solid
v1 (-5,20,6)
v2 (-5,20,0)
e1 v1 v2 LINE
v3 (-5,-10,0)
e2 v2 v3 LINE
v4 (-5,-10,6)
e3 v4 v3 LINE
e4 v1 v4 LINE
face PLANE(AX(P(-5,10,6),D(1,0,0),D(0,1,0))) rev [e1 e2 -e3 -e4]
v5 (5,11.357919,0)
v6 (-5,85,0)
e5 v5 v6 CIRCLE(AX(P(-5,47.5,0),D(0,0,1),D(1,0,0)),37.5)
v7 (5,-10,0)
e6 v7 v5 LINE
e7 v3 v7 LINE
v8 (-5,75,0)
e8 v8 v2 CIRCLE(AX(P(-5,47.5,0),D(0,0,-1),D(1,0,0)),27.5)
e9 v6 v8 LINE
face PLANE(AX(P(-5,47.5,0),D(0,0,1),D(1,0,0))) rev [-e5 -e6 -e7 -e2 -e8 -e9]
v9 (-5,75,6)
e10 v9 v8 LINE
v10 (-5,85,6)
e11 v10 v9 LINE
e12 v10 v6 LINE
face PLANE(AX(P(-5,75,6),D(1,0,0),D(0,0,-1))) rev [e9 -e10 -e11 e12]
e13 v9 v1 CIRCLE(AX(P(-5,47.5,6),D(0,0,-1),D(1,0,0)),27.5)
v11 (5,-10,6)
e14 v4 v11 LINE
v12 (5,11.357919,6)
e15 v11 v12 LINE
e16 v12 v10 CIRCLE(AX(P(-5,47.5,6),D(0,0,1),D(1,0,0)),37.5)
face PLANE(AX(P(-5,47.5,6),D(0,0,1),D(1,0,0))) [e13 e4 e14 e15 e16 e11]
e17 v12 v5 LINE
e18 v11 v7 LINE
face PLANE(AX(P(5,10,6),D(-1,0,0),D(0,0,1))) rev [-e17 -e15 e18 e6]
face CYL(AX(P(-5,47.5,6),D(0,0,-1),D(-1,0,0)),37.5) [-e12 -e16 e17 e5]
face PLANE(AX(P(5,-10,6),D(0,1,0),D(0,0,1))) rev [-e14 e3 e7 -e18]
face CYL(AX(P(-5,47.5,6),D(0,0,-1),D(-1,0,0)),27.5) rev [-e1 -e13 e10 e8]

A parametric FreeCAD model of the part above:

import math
import FreeCAD as App
import Part
import Sketcher

doc = App.newDocument("Part")
params = doc.addObject("Spreadsheet::Sheet", "Params")
for row, (alias, value) in enumerate([
    ("sketch1_radius", "27.5 mm"),
    ("sketch1_radius2", "37.5 mm"),
    ("sketch1_height", "30 mm"),
    ("pad1_length", "6 mm"),
], start=1):
    params.set(f"A{row}", alias)
    params.set(f"B{row}", "=" + value)
    params.setAlias(f"B{row}", alias)

body = doc.addObject("PartDesign::Body", "Body")

# Sketch on XY plane
sketch1 = body.newObject("Sketcher::SketchObject", "Sketch")
sketch1.AttachmentSupport = (doc.getObject("XY_Plane"), [""])
sketch1.MapMode = "FlatFace"
sketch1.addGeometry(Part.ArcOfCircle(Part.Circle(App.Vector(-5, 48, 0), App.Vector(0, 0, 1), 28), math.radians(-90), math.radians(90)), False)
sketch1.addGeometry(Part.LineSegment(App.Vector(-5, 20, 0), App.Vector(-5, -10, 0)), False)
sketch1.addGeometry(Part.LineSegment(App.Vector(-5, -10, 0), App.Vector(5, -10, 0)), False)
sketch1.addGeometry(Part.LineSegment(App.Vector(5, -10, 0), App.Vector(5, 11, 0)), False)
sketch1.addGeometry(Part.ArcOfCircle(Part.Circle(App.Vector(-5, 48, 0), App.Vector(0, 0, 1), 38), math.radians(-75), math.radians(90)), False)
sketch1.addGeometry(Part.LineSegment(App.Vector(-5, 85, 0), App.Vector(-5, 75, 0)), False)
sketch1.addConstraint(Sketcher.Constraint("Coincident", 0, 1, 1, 1))
sketch1.addConstraint(Sketcher.Constraint("Coincident", 1, 2, 2, 1))
sketch1.addConstraint(Sketcher.Constraint("Coincident", 2, 2, 3, 1))
sketch1.addConstraint(Sketcher.Constraint("Coincident", 3, 2, 4, 1))
sketch1.addConstraint(Sketcher.Constraint("Coincident", 4, 2, 5, 1))
sketch1.addConstraint(Sketcher.Constraint("Coincident", 5, 2, 0, 2))
sketch1.addConstraint(Sketcher.Constraint("Vertical", 1))
sketch1.addConstraint(Sketcher.Constraint("Horizontal", 2))
sketch1.addConstraint(Sketcher.Constraint("Vertical", 3))
sketch1.addConstraint(Sketcher.Constraint("Vertical", 5))
sketch1.addConstraint(Sketcher.Constraint("Coincident", 4, 3, 0, 3))
sketch1.addConstraint(Sketcher.Constraint("Vertical", 4, 3, 0, 1))
sketch1.addConstraint(Sketcher.Constraint("Vertical", 1, 2, 4, 2))
sketch1.addConstraint(Sketcher.Constraint("Equal", 2, 5))
sketch1.addConstraint(Sketcher.Constraint("Radius", 0, 27.5))
sketch1.addConstraint(Sketcher.Constraint("Radius", 4, 37.5))
sketch1.addConstraint(Sketcher.Constraint("DistanceY", 1, 2, 1, 1, 30.0))
sketch1.addConstraint(Sketcher.Constraint("DistanceX", 0, 3, -1, 1, 5.0))
sketch1.addConstraint(Sketcher.Constraint("DistanceY", -1, 1, 0, 1, 20.0))
sketch1.setExpression("Constraints[14]", "Params.sketch1_radius")
sketch1.setExpression("Constraints[15]", "Params.sketch1_radius2")
sketch1.setExpression("Constraints[16]", "Params.sketch1_height")
pad1 = body.newObject("PartDesign::Pad", "Pad")
pad1.Profile = sketch1
pad1.setExpression("Length", "Params.pad1_length")

doc.recompute()
